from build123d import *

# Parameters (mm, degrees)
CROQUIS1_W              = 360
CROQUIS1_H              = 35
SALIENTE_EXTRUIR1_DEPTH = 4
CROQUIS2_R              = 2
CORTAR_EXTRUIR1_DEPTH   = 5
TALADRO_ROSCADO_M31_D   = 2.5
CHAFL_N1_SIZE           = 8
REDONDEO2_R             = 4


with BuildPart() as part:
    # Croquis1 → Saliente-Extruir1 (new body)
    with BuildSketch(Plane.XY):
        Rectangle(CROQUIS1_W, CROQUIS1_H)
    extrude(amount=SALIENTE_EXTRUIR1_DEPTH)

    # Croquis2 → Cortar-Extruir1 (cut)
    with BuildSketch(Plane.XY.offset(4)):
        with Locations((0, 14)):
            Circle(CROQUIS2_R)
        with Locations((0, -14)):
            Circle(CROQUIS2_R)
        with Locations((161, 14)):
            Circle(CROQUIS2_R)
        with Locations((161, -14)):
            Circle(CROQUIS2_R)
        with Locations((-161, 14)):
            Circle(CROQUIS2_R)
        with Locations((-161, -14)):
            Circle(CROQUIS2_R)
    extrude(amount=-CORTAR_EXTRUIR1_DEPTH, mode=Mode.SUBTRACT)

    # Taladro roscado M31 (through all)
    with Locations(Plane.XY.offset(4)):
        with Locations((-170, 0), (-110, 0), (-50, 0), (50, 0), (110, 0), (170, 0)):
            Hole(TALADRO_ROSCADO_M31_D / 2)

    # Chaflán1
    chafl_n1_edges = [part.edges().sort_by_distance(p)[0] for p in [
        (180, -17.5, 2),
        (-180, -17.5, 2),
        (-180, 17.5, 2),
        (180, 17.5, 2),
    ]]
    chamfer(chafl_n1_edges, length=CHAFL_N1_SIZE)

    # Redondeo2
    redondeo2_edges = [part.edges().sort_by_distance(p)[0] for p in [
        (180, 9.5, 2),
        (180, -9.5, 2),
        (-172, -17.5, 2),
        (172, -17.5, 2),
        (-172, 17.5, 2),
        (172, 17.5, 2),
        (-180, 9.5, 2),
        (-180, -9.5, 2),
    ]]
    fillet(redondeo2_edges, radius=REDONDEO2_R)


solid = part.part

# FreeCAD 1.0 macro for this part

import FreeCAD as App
import Part
import Sketcher

V = App.Vector
Q = App.Units.Quantity


def edges_at(feature, points):
    """Names of the edges that pass closest to the given points."""
    edges = feature.Shape.Edges
    near = lambda p: min(range(len(edges)), key=lambda i: edges[i].distToShape(Part.Vertex(*p))[0])
    return sorted({f"Edge{near(p) + 1}" for p in points})

doc = App.newDocument("Part")
body = doc.addObject("PartDesign::Body", "Body")

# Sketch on XY plane
sketch1 = body.newObject("Sketcher::SketchObject", "Sketch")
sketch1.AttachmentSupport = (doc.getObject("XY_Plane"), [""])
sketch1.MapMode = "FlatFace"
sketch1.addGeometry(Part.LineSegment(V(-180, 18, 0), V(-180, -18, 0)), False)
sketch1.addGeometry(Part.LineSegment(V(-180, -18, 0), V(180, -18, 0)), False)
sketch1.addGeometry(Part.LineSegment(V(180, -18, 0), V(180, 18, 0)), False)
sketch1.addGeometry(Part.LineSegment(V(180, 18, 0), V(-180, 18, 0)), False)
sketch1.addConstraint(Sketcher.Constraint("Coincident", 0, 2, 1, 1))
sketch1.addConstraint(Sketcher.Constraint("Coincident", 1, 2, 2, 1))
sketch1.addConstraint(Sketcher.Constraint("Coincident", 2, 2, 3, 1))
sketch1.addConstraint(Sketcher.Constraint("Coincident", 3, 2, 0, 1))
sketch1.addConstraint(Sketcher.Constraint("Vertical", 0))
sketch1.addConstraint(Sketcher.Constraint("Horizontal", 1))
sketch1.addConstraint(Sketcher.Constraint("Vertical", 2))
sketch1.addConstraint(Sketcher.Constraint("Horizontal", 3))
sketch1.addConstraint(Sketcher.Constraint("Symmetric", 0, 2, 2, 2, -1, 1))
sketch1.addConstraint(Sketcher.Constraint("DistanceX", 1, 1, 1, 2, Q("360 mm")))
sketch1.addConstraint(Sketcher.Constraint("DistanceY", 0, 2, 0, 1, Q("35 mm")))
pad1 = body.newObject("PartDesign::Pad", "Pad")
pad1.Profile = sketch1
pad1.Length = 4

# Sketch on XY plane
sketch2 = body.newObject("Sketcher::SketchObject", "Sketch001")
sketch2.AttachmentSupport = (doc.getObject("XY_Plane"), [""])
sketch2.MapMode = "FlatFace"
sketch2.AttachmentOffset = App.Placement(V(0, 0, 4), App.Rotation())
sketch2.addGeometry(Part.Circle(V(0, 14, 0), V(0, 0, 1), 2), False)
sketch2.addGeometry(Part.Circle(V(0, -14, 0), V(0, 0, 1), 2), False)
sketch2.addGeometry(Part.Circle(V(161, 14, 0), V(0, 0, 1), 2), False)
sketch2.addGeometry(Part.Circle(V(161, -14, 0), V(0, 0, 1), 2), False)
sketch2.addGeometry(Part.Circle(V(-161, 14, 0), V(0, 0, 1), 2), False)
sketch2.addGeometry(Part.Circle(V(-161, -14, 0), V(0, 0, 1), 2), False)
sketch2.addConstraint(Sketcher.Constraint("Equal", 0, 1))
sketch2.addConstraint(Sketcher.Constraint("Equal", 1, 2))
sketch2.addConstraint(Sketcher.Constraint("Equal", 2, 3))
sketch2.addConstraint(Sketcher.Constraint("Equal", 3, 4))
sketch2.addConstraint(Sketcher.Constraint("Equal", 4, 5))
sketch2.addConstraint(Sketcher.Constraint("Symmetric", 0, 3, 1, 3, -1, 1))
sketch2.addConstraint(Sketcher.Constraint("Symmetric", 3, 3, 4, 3, -1, 1))
sketch2.addConstraint(Sketcher.Constraint("Symmetric", 2, 3, 5, 3, -1, 1))
sketch2.addConstraint(Sketcher.Constraint("Symmetric", 2, 3, 4, 3, -2))
sketch2.addConstraint(Sketcher.Constraint("PointOnObject", 0, 3, -2))
sketch2.addConstraint(Sketcher.Constraint("Horizontal", 0, 3, 2, 3))
sketch2.addConstraint(Sketcher.Constraint("Diameter", 0, Q("4 mm")))
sketch2.addConstraint(Sketcher.Constraint("DistanceY", -1, 1, 0, 3, Q("14 mm")))
sketch2.addConstraint(Sketcher.Constraint("DistanceX", -1, 1, 2, 3, Q("161 mm")))
pocket1 = body.newObject("PartDesign::Pocket", "Pocket")
pocket1.Profile = sketch2
pocket1.Length = 5

# Sketch on XY plane
sketch3 = body.newObject("Sketcher::SketchObject", "Sketch002")
sketch3.AttachmentSupport = (doc.getObject("XY_Plane"), [""])
sketch3.MapMode = "FlatFace"
sketch3.AttachmentOffset = App.Placement(V(0, 0, 4), App.Rotation())
sketch3.addGeometry(Part.Circle(V(-170, 0, 0), V(0, 0, 1), 1.2), False)
sketch3.addGeometry(Part.Circle(V(-110, 0, 0), V(0, 0, 1), 1.2), False)
sketch3.addGeometry(Part.Circle(V(-50, 0, 0), V(0, 0, 1), 1.2), False)
sketch3.addGeometry(Part.Circle(V(50, 0, 0), V(0, 0, 1), 1.2), False)
sketch3.addGeometry(Part.Circle(V(110, 0, 0), V(0, 0, 1), 1.2), False)
sketch3.addGeometry(Part.Circle(V(170, 0, 0), V(0, 0, 1), 1.2), False)
sketch3.addConstraint(Sketcher.Constraint("Equal", 0, 1))
sketch3.addConstraint(Sketcher.Constraint("Equal", 1, 2))
sketch3.addConstraint(Sketcher.Constraint("Equal", 2, 3))
sketch3.addConstraint(Sketcher.Constraint("Equal", 3, 4))
sketch3.addConstraint(Sketcher.Constraint("Equal", 4, 5))
sketch3.addConstraint(Sketcher.Constraint("Symmetric", 2, 3, 3, 3, -1, 1))
sketch3.addConstraint(Sketcher.Constraint("Symmetric", 1, 3, 4, 3, -1, 1))
sketch3.addConstraint(Sketcher.Constraint("Symmetric", 0, 3, 5, 3, -1, 1))
sketch3.addConstraint(Sketcher.Constraint("PointOnObject", 0, 3, -1))
sketch3.addConstraint(Sketcher.Constraint("PointOnObject", 1, 3, -1))
sketch3.addConstraint(Sketcher.Constraint("PointOnObject", 2, 3, -1))
sketch3.addConstraint(Sketcher.Constraint("Diameter", 0, Q("2.5 mm")))
sketch3.addConstraint(Sketcher.Constraint("DistanceX", 0, 3, -1, 1, Q("170 mm")))
sketch3.addConstraint(Sketcher.Constraint("DistanceX", 1, 3, -1, 1, Q("110 mm")))
sketch3.addConstraint(Sketcher.Constraint("DistanceX", 2, 3, -1, 1, Q("50 mm")))
doc.recompute()
hole = body.newObject("PartDesign::Hole", "Hole")
hole.Profile = sketch3
hole.ThreadType = "None"
hole.Diameter = 2.5
hole.DepthType = "ThroughAll"
doc.recompute()

chamfer = body.newObject("PartDesign::Chamfer", "Chamfer")
chamfer.Base = (hole, edges_at(hole, [
    (180, -17.5, 2),
    (-180, -17.5, 2),
    (-180, 17.5, 2),
    (180, 17.5, 2),
]))
chamfer.Size = 8
doc.recompute()

fillet = body.newObject("PartDesign::Fillet", "Fillet")
fillet.Base = (chamfer, edges_at(chamfer, [
    (180, 9.5, 2),
    (180, -9.5, 2),
    (-172, -17.5, 2),
    (172, -17.5, 2),
    (-172, 17.5, 2),
    (172, 17.5, 2),
    (-180, 9.5, 2),
    (-180, -9.5, 2),
]))
fillet.Radius = 4

doc.recompute()
